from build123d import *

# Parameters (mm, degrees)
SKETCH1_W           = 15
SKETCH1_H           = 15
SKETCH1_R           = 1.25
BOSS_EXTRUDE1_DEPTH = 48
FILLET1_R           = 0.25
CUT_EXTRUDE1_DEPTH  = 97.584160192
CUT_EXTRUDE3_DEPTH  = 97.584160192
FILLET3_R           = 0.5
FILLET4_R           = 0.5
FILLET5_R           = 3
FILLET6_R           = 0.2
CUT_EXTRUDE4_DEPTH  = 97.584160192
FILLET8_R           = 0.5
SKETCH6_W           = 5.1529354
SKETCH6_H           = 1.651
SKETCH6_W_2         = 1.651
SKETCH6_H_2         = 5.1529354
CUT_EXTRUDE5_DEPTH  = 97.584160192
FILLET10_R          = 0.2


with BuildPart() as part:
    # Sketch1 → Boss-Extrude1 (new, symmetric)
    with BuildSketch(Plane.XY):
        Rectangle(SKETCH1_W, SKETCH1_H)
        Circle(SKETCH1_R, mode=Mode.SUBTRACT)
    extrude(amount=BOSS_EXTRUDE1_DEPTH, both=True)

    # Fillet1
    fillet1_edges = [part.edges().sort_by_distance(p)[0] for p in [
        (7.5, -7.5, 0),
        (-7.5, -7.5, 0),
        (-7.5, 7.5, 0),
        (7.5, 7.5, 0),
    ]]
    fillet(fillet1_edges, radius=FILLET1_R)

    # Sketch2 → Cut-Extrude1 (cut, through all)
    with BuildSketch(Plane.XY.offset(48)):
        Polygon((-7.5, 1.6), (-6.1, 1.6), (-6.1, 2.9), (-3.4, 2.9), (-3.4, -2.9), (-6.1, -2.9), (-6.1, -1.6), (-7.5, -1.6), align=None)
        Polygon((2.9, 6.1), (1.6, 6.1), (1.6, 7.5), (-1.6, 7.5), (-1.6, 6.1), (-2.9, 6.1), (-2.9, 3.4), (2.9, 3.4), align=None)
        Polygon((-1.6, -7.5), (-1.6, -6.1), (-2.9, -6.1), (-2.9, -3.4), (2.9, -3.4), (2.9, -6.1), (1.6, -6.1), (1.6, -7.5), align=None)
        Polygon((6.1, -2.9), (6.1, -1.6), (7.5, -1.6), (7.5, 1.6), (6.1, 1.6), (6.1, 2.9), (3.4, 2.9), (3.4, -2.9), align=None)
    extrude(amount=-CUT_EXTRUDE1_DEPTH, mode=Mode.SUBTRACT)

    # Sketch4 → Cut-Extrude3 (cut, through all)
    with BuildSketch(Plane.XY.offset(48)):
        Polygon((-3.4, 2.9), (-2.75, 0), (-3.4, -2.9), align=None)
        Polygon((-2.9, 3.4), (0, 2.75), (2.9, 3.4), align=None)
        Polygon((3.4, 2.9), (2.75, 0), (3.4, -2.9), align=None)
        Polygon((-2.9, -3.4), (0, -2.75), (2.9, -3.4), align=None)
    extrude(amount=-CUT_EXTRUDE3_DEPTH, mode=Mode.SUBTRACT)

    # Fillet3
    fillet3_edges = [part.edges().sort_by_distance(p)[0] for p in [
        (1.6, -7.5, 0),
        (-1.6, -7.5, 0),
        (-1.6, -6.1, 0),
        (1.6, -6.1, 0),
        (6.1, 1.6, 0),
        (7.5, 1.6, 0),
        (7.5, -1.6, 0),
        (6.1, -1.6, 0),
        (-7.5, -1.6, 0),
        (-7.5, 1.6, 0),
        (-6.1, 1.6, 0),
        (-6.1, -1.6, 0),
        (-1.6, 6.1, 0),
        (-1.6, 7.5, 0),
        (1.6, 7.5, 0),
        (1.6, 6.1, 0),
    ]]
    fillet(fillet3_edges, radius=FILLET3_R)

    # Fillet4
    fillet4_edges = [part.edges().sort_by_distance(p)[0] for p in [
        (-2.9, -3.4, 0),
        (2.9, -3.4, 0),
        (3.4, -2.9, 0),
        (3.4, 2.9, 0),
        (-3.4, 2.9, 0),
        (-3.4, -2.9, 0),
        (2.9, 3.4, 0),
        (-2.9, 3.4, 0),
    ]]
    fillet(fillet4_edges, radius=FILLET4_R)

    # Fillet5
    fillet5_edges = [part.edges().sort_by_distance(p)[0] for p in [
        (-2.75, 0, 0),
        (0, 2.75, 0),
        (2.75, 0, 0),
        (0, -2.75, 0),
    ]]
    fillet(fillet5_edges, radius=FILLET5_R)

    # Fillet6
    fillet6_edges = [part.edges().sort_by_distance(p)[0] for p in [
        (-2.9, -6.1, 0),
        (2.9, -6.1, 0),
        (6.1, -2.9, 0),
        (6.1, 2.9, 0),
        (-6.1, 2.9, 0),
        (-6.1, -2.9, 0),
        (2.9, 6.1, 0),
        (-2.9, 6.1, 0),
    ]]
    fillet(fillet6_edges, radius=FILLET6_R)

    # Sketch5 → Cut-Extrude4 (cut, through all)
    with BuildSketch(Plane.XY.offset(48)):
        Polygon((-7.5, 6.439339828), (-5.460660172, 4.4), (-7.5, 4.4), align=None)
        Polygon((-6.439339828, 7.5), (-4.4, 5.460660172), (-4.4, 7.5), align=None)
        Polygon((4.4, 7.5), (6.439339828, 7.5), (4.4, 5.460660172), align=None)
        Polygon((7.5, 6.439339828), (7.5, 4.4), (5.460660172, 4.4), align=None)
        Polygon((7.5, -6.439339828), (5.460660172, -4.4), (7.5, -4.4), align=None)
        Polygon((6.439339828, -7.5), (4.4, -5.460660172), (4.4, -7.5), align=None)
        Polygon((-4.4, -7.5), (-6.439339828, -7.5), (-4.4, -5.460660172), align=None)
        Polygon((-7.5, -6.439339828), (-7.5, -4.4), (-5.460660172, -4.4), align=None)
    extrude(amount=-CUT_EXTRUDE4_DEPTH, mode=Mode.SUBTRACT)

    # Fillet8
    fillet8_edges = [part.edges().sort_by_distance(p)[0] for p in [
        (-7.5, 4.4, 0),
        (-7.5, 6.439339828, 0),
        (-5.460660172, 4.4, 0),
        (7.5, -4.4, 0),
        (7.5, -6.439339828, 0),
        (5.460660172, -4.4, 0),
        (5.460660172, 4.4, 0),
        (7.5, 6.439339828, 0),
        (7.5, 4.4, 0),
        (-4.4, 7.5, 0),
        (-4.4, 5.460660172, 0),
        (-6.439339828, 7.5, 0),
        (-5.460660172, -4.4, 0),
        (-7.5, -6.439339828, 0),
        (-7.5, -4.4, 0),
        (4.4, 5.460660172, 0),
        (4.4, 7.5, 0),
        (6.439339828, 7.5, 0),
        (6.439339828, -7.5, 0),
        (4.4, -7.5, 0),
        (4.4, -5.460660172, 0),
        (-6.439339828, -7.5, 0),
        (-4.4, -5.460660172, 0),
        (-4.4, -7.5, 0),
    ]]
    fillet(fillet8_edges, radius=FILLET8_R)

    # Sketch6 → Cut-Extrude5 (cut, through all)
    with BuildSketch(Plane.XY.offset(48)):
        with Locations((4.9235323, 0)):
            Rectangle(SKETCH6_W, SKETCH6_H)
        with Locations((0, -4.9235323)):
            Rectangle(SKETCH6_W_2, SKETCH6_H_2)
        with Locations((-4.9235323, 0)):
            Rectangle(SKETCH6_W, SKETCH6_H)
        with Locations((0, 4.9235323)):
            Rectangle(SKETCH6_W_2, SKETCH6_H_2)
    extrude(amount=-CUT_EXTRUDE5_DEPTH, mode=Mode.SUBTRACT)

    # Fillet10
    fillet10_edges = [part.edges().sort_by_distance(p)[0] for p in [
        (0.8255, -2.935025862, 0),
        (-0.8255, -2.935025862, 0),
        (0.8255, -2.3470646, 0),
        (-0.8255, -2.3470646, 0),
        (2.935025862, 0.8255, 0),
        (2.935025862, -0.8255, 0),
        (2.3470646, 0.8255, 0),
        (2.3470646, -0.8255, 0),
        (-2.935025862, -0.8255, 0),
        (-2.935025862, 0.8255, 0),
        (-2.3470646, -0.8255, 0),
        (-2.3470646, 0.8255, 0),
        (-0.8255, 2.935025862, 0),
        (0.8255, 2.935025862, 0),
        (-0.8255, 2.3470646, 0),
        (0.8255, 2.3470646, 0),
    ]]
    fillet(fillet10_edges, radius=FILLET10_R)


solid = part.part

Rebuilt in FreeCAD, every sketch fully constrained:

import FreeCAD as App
import Part
import Sketcher

V = App.Vector


def edges_at(feature, points):
    """Names of the edges that pass closest to the given points."""
    edges = feature.Shape.Edges
    near = lambda p: min(range(len(edges)), key=lambda i: edges[i].distToShape(Part.Vertex(*p))[0])
    return sorted({f"Edge{near(p) + 1}" for p in points})


def add_polygon(sketch, points):
    """Adds a closed chain of lines whose ends are joined by coincident constraints."""
    first, n = sketch.GeometryCount, len(points)
    for a, b in zip(points, points[1:] + points[:1]):
        sketch.addGeometry(Part.LineSegment(App.Vector(*a, 0), App.Vector(*b, 0)), False)
    for i in range(n):
        sketch.addConstraint(Sketcher.Constraint("Coincident", first + i, 2, first + (i + 1) % n, 1))

doc = App.newDocument("Part")
body = doc.addObject("PartDesign::Body", "Body")

# Sketch on XY plane
sketch1 = body.newObject("Sketcher::SketchObject", "Sketch")
sketch1.AttachmentSupport = (doc.getObject("XY_Plane"), [""])
sketch1.MapMode = "FlatFace"
add_polygon(sketch1, [(-7.5, 7.5), (-7.5, -7.5), (7.5, -7.5), (7.5, 7.5)])  # lines 0-3
sketch1.addGeometry(Part.Circle(V(0, 0, 0), V(0, 0, 1), 1.2), False)  # 4
sketch1.addConstraint(Sketcher.Constraint("Vertical", 0))
sketch1.addConstraint(Sketcher.Constraint("Horizontal", 1))
sketch1.addConstraint(Sketcher.Constraint("Vertical", 2))
sketch1.addConstraint(Sketcher.Constraint("Horizontal", 3))
sketch1.addConstraint(Sketcher.Constraint("Coincident", 4, 3, -1, 1))
sketch1.addConstraint(Sketcher.Constraint("Symmetric", 0, 2, 2, 2, -1, 1))
sketch1.addConstraint(Sketcher.Constraint("Equal", 3, 0))
sketch1.addConstraint(Sketcher.Constraint("Diameter", 4, 2.5))
sketch1.addConstraint(Sketcher.Constraint("DistanceX", 1, 1, 1, 2, 15.0))
pad1 = body.newObject("PartDesign::Pad", "Pad")
pad1.Profile = sketch1
pad1.Length = 96
pad1.Midplane = True
doc.recompute()

fillet = body.newObject("PartDesign::Fillet", "Fillet")
fillet.Base = (pad1, edges_at(pad1, [
    (7.5, -7.5, 0),
    (-7.5, -7.5, 0),
    (-7.5, 7.5, 0),
    (7.5, 7.5, 0),
]))
fillet.Radius = 0.25

# Sketch on XY plane
sketch2 = body.newObject("Sketcher::SketchObject", "Sketch001")
sketch2.AttachmentSupport = (doc.getObject("XY_Plane"), [""])
sketch2.MapMode = "FlatFace"
sketch2.AttachmentOffset = App.Placement(V(0, 0, 48), App.Rotation())
add_polygon(sketch2, [(-6.1, 1.6), (-7.5, 1.6), (-7.5, -1.6), (-6.1, -1.6), (-6.1, -2.9), (-3.4, -2.9), (-3.4, 2.9), (-6.1, 2.9)])  # lines 0-7
add_polygon(sketch2, [(2.9, 6.1), (1.6, 6.1), (1.6, 7.5), (-1.6, 7.5), (-1.6, 6.1), (-2.9, 6.1), (-2.9, 3.4), (2.9, 3.4)])  # lines 8-15
add_polygon(sketch2, [(-1.6, -6.1), (-1.6, -7.5), (1.6, -7.5), (1.6, -6.1), (2.9, -6.1), (2.9, -3.4), (-2.9, -3.4), (-2.9, -6.1)])  # lines 16-23
add_polygon(sketch2, [(6.1, -2.9), (6.1, -1.6), (7.5, -1.6), (7.5, 1.6), (6.1, 1.6), (6.1, 2.9), (3.4, 2.9), (3.4, -2.9)])  # lines 24-31
sketch2.addConstraint(Sketcher.Constraint("Horizontal", 0))
sketch2.addConstraint(Sketcher.Constraint("Vertical", 1))
sketch2.addConstraint(Sketcher.Constraint("Horizontal", 2))
sketch2.addConstraint(Sketcher.Constraint("Vertical", 3))
sketch2.addConstraint(Sketcher.Constraint("Horizontal", 4))
sketch2.addConstraint(Sketcher.Constraint("Vertical", 5))
sketch2.addConstraint(Sketcher.Constraint("Horizontal", 6))
sketch2.addConstraint(Sketcher.Constraint("Vertical", 7))
sketch2.addConstraint(Sketcher.Constraint("Horizontal", 8))
sketch2.addConstraint(Sketcher.Constraint("Vertical", 9))
sketch2.addConstraint(Sketcher.Constraint("Horizontal", 10))
sketch2.addConstraint(Sketcher.Constraint("Vertical", 11))
sketch2.addConstraint(Sketcher.Constraint("Horizontal", 12))
sketch2.addConstraint(Sketcher.Constraint("Vertical", 13))
sketch2.addConstraint(Sketcher.Constraint("Horizontal", 14))
sketch2.addConstraint(Sketcher.Constraint("Vertical", 15))
sketch2.addConstraint(Sketcher.Constraint("Vertical", 16))
sketch2.addConstraint(Sketcher.Constraint("Horizontal", 17))
sketch2.addConstraint(Sketcher.Constraint("Vertical", 18))
sketch2.addConstraint(Sketcher.Constraint("Horizontal", 19))
sketch2.addConstraint(Sketcher.Constraint("Vertical", 20))
sketch2.addConstraint(Sketcher.Constraint("Horizontal", 21))
sketch2.addConstraint(Sketcher.Constraint("Vertical", 22))
sketch2.addConstraint(Sketcher.Constraint("Horizontal", 23))
sketch2.addConstraint(Sketcher.Constraint("Vertical", 24))
sketch2.addConstraint(Sketcher.Constraint("Horizontal", 25))
sketch2.addConstraint(Sketcher.Constraint("Vertical", 26))
sketch2.addConstraint(Sketcher.Constraint("Horizontal", 27))
sketch2.addConstraint(Sketcher.Constraint("Vertical", 28))
sketch2.addConstraint(Sketcher.Constraint("Horizontal", 29))
sketch2.addConstraint(Sketcher.Constraint("Vertical", 30))
sketch2.addConstraint(Sketcher.Constraint("Horizontal", 31))
sketch2.addConstraint(Sketcher.Constraint("Symmetric", 9, 2, 16, 2, -1, 1))
sketch2.addConstraint(Sketcher.Constraint("Symmetric", 11, 2, 18, 2, -1, 1))
sketch2.addConstraint(Sketcher.Constraint("Symmetric", 13, 2, 20, 2, -1, 1))
sketch2.addConstraint(Sketcher.Constraint("Symmetric", 15, 2, 22, 2, -1, 1))
sketch2.addConstraint(Sketcher.Constraint("Symmetric", 7, 2, 24, 2, -1, 1))
sketch2.addConstraint(Sketcher.Constraint("Symmetric", 1, 2, 26, 2, -1, 1))
sketch2.addConstraint(Sketcher.Constraint("Symmetric", 3, 2, 28, 2, -1, 1))
sketch2.addConstraint(Sketcher.Constraint("Symmetric", 5, 2, 30, 2, -1, 1))
sketch2.addConstraint(Sketcher.Constraint("Symmetric", 8, 2, 11, 2, -2))
sketch2.addConstraint(Sketcher.Constraint("Symmetric", 2, 2, 24, 2, -2))
sketch2.addConstraint(Sketcher.Constraint("Horizontal", 6, 2, 28, 2))
sketch2.addConstraint(Sketcher.Constraint("Vertical", 15, 2, 19, 2))
sketch2.addConstraint(Sketcher.Constraint("Equal", 17, 1))
sketch2.addConstraint(Sketcher.Constraint("Equal", 23, 3))
sketch2.addConstraint(Sketcher.Constraint("Equal", 27, 9))
sketch2.addConstraint(Sketcher.Constraint("Equal", 31, 13))
sketch2.addConstraint(Sketcher.Constraint("DistanceX", 0, 2, 0, 1, 1.4))
sketch2.addConstraint(Sketcher.Constraint("DistanceX", 4, 1, 4, 2, 2.7))
sketch2.addConstraint(Sketcher.Constraint("DistanceX", 8, 2, 8, 1, 1.3))
sketch2.addConstraint(Sketcher.Constraint("DistanceX", 10, 2, 10, 1, 3.2))
sketch2.addConstraint(Sketcher.Constraint("DistanceX", 5, 2, 8, 2, 5.0))
sketch2.addConstraint(Sketcher.Constraint("DistanceY", 4, 2, 8, 2, 9.0))
pocket1 = body.newObject("PartDesign::Pocket", "Pocket")
pocket1.Profile = sketch2
pocket1.Type = "ThroughAll"

# Sketch on XY plane
sketch3 = body.newObject("Sketcher::SketchObject", "Sketch002")
sketch3.AttachmentSupport = (doc.getObject("XY_Plane"), [""])
sketch3.MapMode = "FlatFace"
sketch3.AttachmentOffset = App.Placement(V(0, 0, 48), App.Rotation())
add_polygon(sketch3, [(-2.8, 0), (-3.4, 2.9), (-3.4, -2.9)])  # lines 0-2
add_polygon(sketch3, [(-2.9, 3.4), (0, 2.8), (2.9, 3.4)])  # lines 3-5
add_polygon(sketch3, [(3.4, 2.9), (2.8, 0), (3.4, -2.9)])  # lines 6-8
add_polygon(sketch3, [(0, -2.8), (-2.9, -3.4), (2.9, -3.4)])  # lines 9-11
sketch3.addConstraint(Sketcher.Constraint("Vertical", 1))
sketch3.addConstraint(Sketcher.Constraint("Horizontal", 5))
sketch3.addConstraint(Sketcher.Constraint("Vertical", 8))
sketch3.addConstraint(Sketcher.Constraint("Horizontal", 10))
sketch3.addConstraint(Sketcher.Constraint("Symmetric", 2, 2, 6, 2, -1, 1))
sketch3.addConstraint(Sketcher.Constraint("Symmetric", 0, 2, 7, 2, -1, 1))
sketch3.addConstraint(Sketcher.Constraint("Symmetric", 4, 2, 9, 2, -1, 1))
sketch3.addConstraint(Sketcher.Constraint("Symmetric", 3, 2, 11, 2, -1, 1))
sketch3.addConstraint(Sketcher.Constraint("PointOnObject", 2, 2, -1))
sketch3.addConstraint(Sketcher.Constraint("PointOnObject", 3, 2, -2))
sketch3.addConstraint(Sketcher.Constraint("Perpendicular", 2, 3))
sketch3.addConstraint(Sketcher.Constraint("Perpendicular", 0, 4))
sketch3.addConstraint(Sketcher.Constraint("Perpendicular", 3, 6))
sketch3.addConstraint(Sketcher.Constraint("Perpendicular", 6, 11))
sketch3.addConstraint(Sketcher.Constraint("Horizontal", 1, 2, 7, 2))
sketch3.addConstraint(Sketcher.Constraint("Equal", 10, 1))
sketch3.addConstraint(Sketcher.Constraint("DistanceX", 5, 2, 5, 1, 5.8))
sketch3.addConstraint(Sketcher.Constraint("DistanceX", 0, 2, -1, 1, 3.4))
sketch3.addConstraint(Sketcher.Constraint("DistanceY", -1, 1, 4, 2, 3.4))
sketch3.addConstraint(Sketcher.Constraint("DistanceX", 2, 2, 6, 2, 5.5))
pocket2 = body.newObject("PartDesign::Pocket", "Pocket001")
pocket2.Profile = sketch3
pocket2.Type = "ThroughAll"
doc.recompute()

fillet2 = body.newObject("PartDesign::Fillet", "Fillet001")
fillet2.Base = (pocket2, edges_at(pocket2, [
    (1.6, -7.5, 0),
    (-1.6, -7.5, 0),
    (-1.6, -6.1, 0),
    (1.6, -6.1, 0),
    (6.1, 1.6, 0),
    (7.5, 1.6, 0),
    (7.5, -1.6, 0),
    (6.1, -1.6, 0),
    (-7.5, -1.6, 0),
    (-7.5, 1.6, 0),
    (-6.1, 1.6, 0),
    (-6.1, -1.6, 0),
    (-1.6, 6.1, 0),
    (-1.6, 7.5, 0),
    (1.6, 7.5, 0),
    (1.6, 6.1, 0),
]))
fillet2.Radius = 0.5
doc.recompute()

fillet3 = body.newObject("PartDesign::Fillet", "Fillet002")
fillet3.Base = (fillet2, edges_at(fillet2, [
    (-2.9, -3.4, 0),
    (2.9, -3.4, 0),
    (3.4, -2.9, 0),
    (3.4, 2.9, 0),
    (-3.4, 2.9, 0),
    (-3.4, -2.9, 0),
    (2.9, 3.4, 0),
    (-2.9, 3.4, 0),
]))
fillet3.Radius = 0.5
doc.recompute()

fillet4 = body.newObject("PartDesign::Fillet", "Fillet003")
fillet4.Base = (fillet3, edges_at(fillet3, [
    (-2.75, 0, 0),
    (0, 2.75, 0),
    (2.75, 0, 0),
    (0, -2.75, 0),
]))
fillet4.Radius = 3
doc.recompute()

fillet5 = body.newObject("PartDesign::Fillet", "Fillet004")
fillet5.Base = (fillet4, edges_at(fillet4, [
    (-2.9, -6.1, 0),
    (2.9, -6.1, 0),
    (6.1, -2.9, 0),
    (6.1, 2.9, 0),
    (-6.1, 2.9, 0),
    (-6.1, -2.9, 0),
    (2.9, 6.1, 0),
    (-2.9, 6.1, 0),
]))
fillet5.Radius = 0.2

# Sketch on XY plane
sketch4 = body.newObject("Sketcher::SketchObject", "Sketch003")
sketch4.AttachmentSupport = (doc.getObject("XY_Plane"), [""])
sketch4.MapMode = "FlatFace"
sketch4.AttachmentOffset = App.Placement(V(0, 0, 48), App.Rotation())
add_polygon(sketch4, [(-5.5, 4.4), (-7.5, 6.4), (-7.5, 4.4)])  # lines 0-2
add_polygon(sketch4, [(-6.4, 7.5), (-4.4, 5.5), (-4.4, 7.5)])  # lines 3-5
add_polygon(sketch4, [(6.4, 7.5), (4.4, 7.5), (4.4, 5.5)])  # lines 6-8
add_polygon(sketch4, [(7.5, 4.4), (7.5, 6.4), (5.5, 4.4)])  # lines 9-11
add_polygon(sketch4, [(5.5, -4.4), (7.5, -6.4), (7.5, -4.4)])  # lines 12-14
add_polygon(sketch4, [(6.4, -7.5), (4.4, -5.5), (4.4, -7.5)])  # lines 15-17
add_polygon(sketch4, [(-6.4, -7.5), (-4.4, -7.5), (-4.4, -5.5)])  # lines 18-20
add_polygon(sketch4, [(-7.5, -4.4), (-7.5, -6.4), (-5.5, -4.4)])  # lines 21-23
sketch4.addConstraint(Sketcher.Constraint("Vertical", 1))
sketch4.addConstraint(Sketcher.Constraint("Horizontal", 2))
sketch4.addConstraint(Sketcher.Constraint("Vertical", 4))
sketch4.addConstraint(Sketcher.Constraint("Horizontal", 5))
sketch4.addConstraint(Sketcher.Constraint("Horizontal", 6))
sketch4.addConstraint(Sketcher.Constraint("Vertical", 7))
sketch4.addConstraint(Sketcher.Constraint("Vertical", 9))
sketch4.addConstraint(Sketcher.Constraint("Horizontal", 11))
sketch4.addConstraint(Sketcher.Constraint("Vertical", 13))
sketch4.addConstraint(Sketcher.Constraint("Horizontal", 14))
sketch4.addConstraint(Sketcher.Constraint("Vertical", 16))
sketch4.addConstraint(Sketcher.Constraint("Horizontal", 17))
sketch4.addConstraint(Sketcher.Constraint("Horizontal", 18))
sketch4.addConstraint(Sketcher.Constraint("Vertical", 19))
sketch4.addConstraint(Sketcher.Constraint("Vertical", 21))
sketch4.addConstraint(Sketcher.Constraint("Horizontal", 23))
sketch4.addConstraint(Sketcher.Constraint("Symmetric", 0, 2, 12, 2, -1, 1))
sketch4.addConstraint(Sketcher.Constraint("Symmetric", 2, 2, 14, 2, -1, 1))
sketch4.addConstraint(Sketcher.Constraint("Symmetric", 3, 2, 15, 2, -1, 1))
sketch4.addConstraint(Sketcher.Constraint("Symmetric", 5, 2, 17, 2, -1, 1))
sketch4.addConstraint(Sketcher.Constraint("Symmetric", 6, 2, 18, 2, -1, 1))
sketch4.addConstraint(Sketcher.Constraint("Symmetric", 9, 2, 21, 2, -1, 1))
sketch4.addConstraint(Sketcher.Constraint("Symmetric", 10, 2, 22, 2, -1, 1))
sketch4.addConstraint(Sketcher.Constraint("Symmetric", 4, 2, 6, 2, -2))
sketch4.addConstraint(Sketcher.Constraint("Symmetric", 0, 2, 9, 2, -2))
sketch4.addConstraint(Sketcher.Constraint("Symmetric", 2, 2, 10, 2, -2))
sketch4.addConstraint(Sketcher.Constraint("Parallel", 0, 3))
sketch4.addConstraint(Sketcher.Constraint("Perpendicular", 3, 8))
sketch4.addConstraint(Sketcher.Constraint("Parallel", 8, 10))
sketch4.addConstraint(Sketcher.Constraint("Perpendicular", 15, 20))
sketch4.addConstraint(Sketcher.Constraint("Horizontal", 3, 2, 7, 2))
sketch4.addConstraint(Sketcher.Constraint("Horizontal", 15, 2, 19, 2))
sketch4.addConstraint(Sketcher.Constraint("Equal", 2, 5))
sketch4.addConstraint(Sketcher.Constraint("DistanceX", 0, 2, -1, 1, 7.5))
sketch4.addConstraint(Sketcher.Constraint("DistanceY", -1, 1, 1, 2, 4.4))
sketch4.addConstraint(Sketcher.Constraint("DistanceX", 3, 2, -1, 1, 4.4))
sketch4.addConstraint(Sketcher.Constraint("DistanceY", -1, 1, 4, 2, 7.5))
sketch4.addConstraint(Sketcher.Constraint("DistanceX", 2, 1, 2, 2, 2.03934))
pocket3 = body.newObject("PartDesign::Pocket", "Pocket002")
pocket3.Profile = sketch4
pocket3.Type = "ThroughAll"
doc.recompute()

fillet6 = body.newObject("PartDesign::Fillet", "Fillet005")
fillet6.Base = (pocket3, edges_at(pocket3, [
    (-7.5, 4.4, 0),
    (-7.5, 6.439, 0),
    (-5.461, 4.4, 0),
    (7.5, -4.4, 0),
    (7.5, -6.439, 0),
    (5.461, -4.4, 0),
    (5.461, 4.4, 0),
    (7.5, 6.439, 0),
    (7.5, 4.4, 0),
    (-4.4, 7.5, 0),
    (-4.4, 5.461, 0),
    (-6.439, 7.5, 0),
    (-5.461, -4.4, 0),
    (-7.5, -6.439, 0),
    (-7.5, -4.4, 0),
    (4.4, 5.461, 0),
    (4.4, 7.5, 0),
    (6.439, 7.5, 0),
    (6.439, -7.5, 0),
    (4.4, -7.5, 0),
    (4.4, -5.461, 0),
    (-6.439, -7.5, 0),
    (-4.4, -5.461, 0),
    (-4.4, -7.5, 0),
]))
fillet6.Radius = 0.5

# Sketch on XY plane
sketch5 = body.newObject("Sketcher::SketchObject", "Sketch004")
sketch5.AttachmentSupport = (doc.getObject("XY_Plane"), [""])
sketch5.MapMode = "FlatFace"
sketch5.AttachmentOffset = App.Placement(V(0, 0, 48), App.Rotation())
add_polygon(sketch5, [(2.3, 0.8), (2.3, -0.8), (7.5, -0.8), (7.5, 0.8)])  # lines 0-3
add_polygon(sketch5, [(-0.8, -2.3), (-0.8, -7.5), (0.8, -7.5), (0.8, -2.3)])  # lines 4-7
add_polygon(sketch5, [(-7.5, 0.8), (-7.5, -0.8), (-2.3, -0.8), (-2.3, 0.8)])  # lines 8-11
add_polygon(sketch5, [(-0.8, 7.5), (-0.8, 2.3), (0.8, 2.3), (0.8, 7.5)])  # lines 12-15
sketch5.addConstraint(Sketcher.Constraint("Vertical", 0))
sketch5.addConstraint(Sketcher.Constraint("Horizontal", 1))
sketch5.addConstraint(Sketcher.Constraint("Vertical", 2))
sketch5.addConstraint(Sketcher.Constraint("Horizontal", 3))
sketch5.addConstraint(Sketcher.Constraint("Vertical", 4))
sketch5.addConstraint(Sketcher.Constraint("Horizontal", 5))
sketch5.addConstraint(Sketcher.Constraint("Vertical", 6))
sketch5.addConstraint(Sketcher.Constraint("Horizontal", 7))
sketch5.addConstraint(Sketcher.Constraint("Vertical", 8))
sketch5.addConstraint(Sketcher.Constraint("Horizontal", 9))
sketch5.addConstraint(Sketcher.Constraint("Vertical", 10))
sketch5.addConstraint(Sketcher.Constraint("Horizontal", 11))
sketch5.addConstraint(Sketcher.Constraint("Vertical", 12))
sketch5.addConstraint(Sketcher.Constraint("Horizontal", 13))
sketch5.addConstraint(Sketcher.Constraint("Vertical", 14))
sketch5.addConstraint(Sketcher.Constraint("Horizontal", 15))
sketch5.addConstraint(Sketcher.Constraint("Symmetric", 2, 2, 8, 2, -1, 1))
sketch5.addConstraint(Sketcher.Constraint("Symmetric", 0, 2, 10, 2, -1, 1))
sketch5.addConstraint(Sketcher.Constraint("Symmetric", 6, 2, 12, 2, -1, 1))
sketch5.addConstraint(Sketcher.Constraint("Symmetric", 4, 2, 14, 2, -1, 1))
sketch5.addConstraint(Sketcher.Constraint("Horizontal", 1, 2, 8, 2))
sketch5.addConstraint(Sketcher.Constraint("Vertical", 7, 2, 12, 2))
sketch5.addConstraint(Sketcher.Constraint("Equal", 15, 0))
sketch5.addConstraint(Sketcher.Constraint("Equal", 11, 4))
sketch5.addConstraint(Sketcher.Constraint("DistanceX", -1, 1, 1, 2, 7.5))
sketch5.addConstraint(Sketcher.Constraint("DistanceY", 4, 2, -1, 1, 7.5))
sketch5.addConstraint(Sketcher.Constraint("DistanceX", 5, 1, 5, 2, 1.651))
sketch5.addConstraint(Sketcher.Constraint("DistanceX", 1, 1, 1, 2, 5.152935))
pocket4 = body.newObject("PartDesign::Pocket", "Pocket003")
pocket4.Profile = sketch5
pocket4.Type = "ThroughAll"
doc.recompute()

fillet7 = body.newObject("PartDesign::Fillet", "Fillet006")
fillet7.Base = (pocket4, edges_at(pocket4, [
    (0.826, -2.935, 0),
    (-0.826, -2.935, 0),
    (0.826, -2.347, 0),
    (-0.826, -2.347, 0),
    (2.935, 0.826, 0),
    (2.935, -0.826, 0),
    (2.347, 0.826, 0),
    (2.347, -0.826, 0),
    (-2.935, -0.826, 0),
    (-2.935, 0.826, 0),
    (-2.347, -0.826, 0),
    (-2.347, 0.826, 0),
    (-0.826, 2.935, 0),
    (0.826, 2.935, 0),
    (-0.826, 2.347, 0),
    (0.826, 2.347, 0),
]))
fillet7.Radius = 0.2

doc.recompute()
